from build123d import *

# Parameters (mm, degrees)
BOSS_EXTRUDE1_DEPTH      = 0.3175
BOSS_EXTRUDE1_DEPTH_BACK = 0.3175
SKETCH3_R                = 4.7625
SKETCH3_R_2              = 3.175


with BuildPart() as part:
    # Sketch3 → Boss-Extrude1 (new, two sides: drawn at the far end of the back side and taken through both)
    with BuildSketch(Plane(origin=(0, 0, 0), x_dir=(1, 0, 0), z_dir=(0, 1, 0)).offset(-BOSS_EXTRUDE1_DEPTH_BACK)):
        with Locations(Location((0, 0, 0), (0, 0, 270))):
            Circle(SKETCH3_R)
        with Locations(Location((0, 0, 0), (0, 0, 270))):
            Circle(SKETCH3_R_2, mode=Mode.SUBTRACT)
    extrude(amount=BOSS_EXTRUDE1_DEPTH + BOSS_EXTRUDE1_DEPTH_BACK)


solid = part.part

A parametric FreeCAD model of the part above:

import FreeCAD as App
import Part
import Sketcher

V = App.Vector
Q = App.Units.Quantity

doc = App.newDocument("Part")
body = doc.addObject("PartDesign::Body", "Body")

sketch1 = body.newObject("Sketcher::SketchObject", "Sketch")
sketch1.AttachmentSupport = (doc.getObject("XZ_Plane"), [""])
sketch1.MapMode = "FlatFace"
sketch1.addGeometry(Part.Circle(V(0, 0, 0), V(0, 0, 1), 4.8), False)
sketch1.addGeometry(Part.Circle(V(0, 0, 0), V(0, 0, 1), 3.2), False)
sketch1.addConstraint(Sketcher.Constraint("Coincident", 0, 3, -1, 1))
sketch1.addConstraint(Sketcher.Constraint("Coincident", 1, 3, -1, 1))
sketch1.addConstraint(Sketcher.Constraint("Diameter", 1, Q("0.25 in")))
sketch1.addConstraint(Sketcher.Constraint("Diameter", 0, Q("0.375 in")))
pad1 = body.newObject("PartDesign::Pad", "Pad")
pad1.Profile = sketch1
pad1.Type = "TwoLengths"
pad1.Length = Q("0.0125 in")
pad1.Length2 = Q("0.0125 in")
pad1.Reversed = True

doc.recompute()
